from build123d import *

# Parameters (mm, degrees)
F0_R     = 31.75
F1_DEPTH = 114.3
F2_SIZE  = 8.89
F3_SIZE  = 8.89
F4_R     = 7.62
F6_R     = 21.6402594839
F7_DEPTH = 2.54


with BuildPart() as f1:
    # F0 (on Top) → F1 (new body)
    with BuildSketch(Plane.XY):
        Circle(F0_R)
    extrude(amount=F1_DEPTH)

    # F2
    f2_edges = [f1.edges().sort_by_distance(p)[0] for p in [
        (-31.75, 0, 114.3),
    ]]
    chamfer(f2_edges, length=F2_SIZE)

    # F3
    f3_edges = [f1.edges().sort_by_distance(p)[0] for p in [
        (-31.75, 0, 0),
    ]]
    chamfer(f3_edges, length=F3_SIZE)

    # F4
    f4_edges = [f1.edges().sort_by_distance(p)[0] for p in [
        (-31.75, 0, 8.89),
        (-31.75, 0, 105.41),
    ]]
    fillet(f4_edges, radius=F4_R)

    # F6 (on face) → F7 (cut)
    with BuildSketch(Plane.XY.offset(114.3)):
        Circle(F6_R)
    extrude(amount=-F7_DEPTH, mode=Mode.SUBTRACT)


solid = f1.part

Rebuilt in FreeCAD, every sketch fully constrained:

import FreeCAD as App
import Part
import Sketcher

V = App.Vector
Q = App.Units.Quantity


def edges_at(feature, points):
    """Names of the edges that pass closest to the given points."""
    edges = feature.Shape.Edges
    near = lambda p: min(range(len(edges)), key=lambda i: edges[i].distToShape(Part.Vertex(*p))[0])
    return sorted({f"Edge{near(p) + 1}" for p in points})

doc = App.newDocument("Part")
body = doc.addObject("PartDesign::Body", "Body")

sketch1 = body.newObject("Sketcher::SketchObject", "Sketch")
sketch1.AttachmentSupport = (doc.getObject("XY_Plane"), [""])
sketch1.MapMode = "FlatFace"
sketch1.addGeometry(Part.Circle(V(0, 0, 0), V(0, 0, 1), 32), False)
sketch1.addConstraint([
    Sketcher.Constraint("Coincident", 0, 3, -1, 1),
    Sketcher.Constraint("Diameter", 0, Q("2.5 in")),
])
pad1 = body.newObject("PartDesign::Pad", "Pad")
pad1.Profile = sketch1
pad1.Length = Q("4.5 in")
doc.recompute()

chamfer = body.newObject("PartDesign::Chamfer", "Chamfer")
chamfer.Base = (pad1, edges_at(pad1, [(-31.75, 0, 114.3)]))
chamfer.Size = Q("0.35 in")
doc.recompute()

chamfer2 = body.newObject("PartDesign::Chamfer", "Chamfer001")
chamfer2.Base = (chamfer, edges_at(chamfer, [(-31.75, 0, 0)]))
chamfer2.Size = Q("0.35 in")
doc.recompute()

fillet = body.newObject("PartDesign::Fillet", "Fillet")
fillet.Base = (chamfer2, edges_at(chamfer2, [(-31.75, 0, 8.89), (-31.75, 0, 105.41)]))
fillet.Radius = Q("0.3 in")

sketch2 = body.newObject("Sketcher::SketchObject", "Sketch001")
sketch2.AttachmentSupport = (doc.getObject("XY_Plane"), [""])
sketch2.MapMode = "FlatFace"
sketch2.AttachmentOffset = App.Placement(V(0, 0, 4.5 * 25.4), App.Rotation())
sketch2.addGeometry(Part.Circle(V(0, 0, 0), V(0, 0, 1), 22), False)
sketch2.addConstraint([
    Sketcher.Constraint("Coincident", 0, 3, -1, 1),
    Sketcher.Constraint("Diameter", 0, Q("43.280519 mm")),
])
pocket1 = body.newObject("PartDesign::Pocket", "Pocket")
pocket1.Profile = sketch2
pocket1.Length = Q("0.1 in")

doc.recompute()
